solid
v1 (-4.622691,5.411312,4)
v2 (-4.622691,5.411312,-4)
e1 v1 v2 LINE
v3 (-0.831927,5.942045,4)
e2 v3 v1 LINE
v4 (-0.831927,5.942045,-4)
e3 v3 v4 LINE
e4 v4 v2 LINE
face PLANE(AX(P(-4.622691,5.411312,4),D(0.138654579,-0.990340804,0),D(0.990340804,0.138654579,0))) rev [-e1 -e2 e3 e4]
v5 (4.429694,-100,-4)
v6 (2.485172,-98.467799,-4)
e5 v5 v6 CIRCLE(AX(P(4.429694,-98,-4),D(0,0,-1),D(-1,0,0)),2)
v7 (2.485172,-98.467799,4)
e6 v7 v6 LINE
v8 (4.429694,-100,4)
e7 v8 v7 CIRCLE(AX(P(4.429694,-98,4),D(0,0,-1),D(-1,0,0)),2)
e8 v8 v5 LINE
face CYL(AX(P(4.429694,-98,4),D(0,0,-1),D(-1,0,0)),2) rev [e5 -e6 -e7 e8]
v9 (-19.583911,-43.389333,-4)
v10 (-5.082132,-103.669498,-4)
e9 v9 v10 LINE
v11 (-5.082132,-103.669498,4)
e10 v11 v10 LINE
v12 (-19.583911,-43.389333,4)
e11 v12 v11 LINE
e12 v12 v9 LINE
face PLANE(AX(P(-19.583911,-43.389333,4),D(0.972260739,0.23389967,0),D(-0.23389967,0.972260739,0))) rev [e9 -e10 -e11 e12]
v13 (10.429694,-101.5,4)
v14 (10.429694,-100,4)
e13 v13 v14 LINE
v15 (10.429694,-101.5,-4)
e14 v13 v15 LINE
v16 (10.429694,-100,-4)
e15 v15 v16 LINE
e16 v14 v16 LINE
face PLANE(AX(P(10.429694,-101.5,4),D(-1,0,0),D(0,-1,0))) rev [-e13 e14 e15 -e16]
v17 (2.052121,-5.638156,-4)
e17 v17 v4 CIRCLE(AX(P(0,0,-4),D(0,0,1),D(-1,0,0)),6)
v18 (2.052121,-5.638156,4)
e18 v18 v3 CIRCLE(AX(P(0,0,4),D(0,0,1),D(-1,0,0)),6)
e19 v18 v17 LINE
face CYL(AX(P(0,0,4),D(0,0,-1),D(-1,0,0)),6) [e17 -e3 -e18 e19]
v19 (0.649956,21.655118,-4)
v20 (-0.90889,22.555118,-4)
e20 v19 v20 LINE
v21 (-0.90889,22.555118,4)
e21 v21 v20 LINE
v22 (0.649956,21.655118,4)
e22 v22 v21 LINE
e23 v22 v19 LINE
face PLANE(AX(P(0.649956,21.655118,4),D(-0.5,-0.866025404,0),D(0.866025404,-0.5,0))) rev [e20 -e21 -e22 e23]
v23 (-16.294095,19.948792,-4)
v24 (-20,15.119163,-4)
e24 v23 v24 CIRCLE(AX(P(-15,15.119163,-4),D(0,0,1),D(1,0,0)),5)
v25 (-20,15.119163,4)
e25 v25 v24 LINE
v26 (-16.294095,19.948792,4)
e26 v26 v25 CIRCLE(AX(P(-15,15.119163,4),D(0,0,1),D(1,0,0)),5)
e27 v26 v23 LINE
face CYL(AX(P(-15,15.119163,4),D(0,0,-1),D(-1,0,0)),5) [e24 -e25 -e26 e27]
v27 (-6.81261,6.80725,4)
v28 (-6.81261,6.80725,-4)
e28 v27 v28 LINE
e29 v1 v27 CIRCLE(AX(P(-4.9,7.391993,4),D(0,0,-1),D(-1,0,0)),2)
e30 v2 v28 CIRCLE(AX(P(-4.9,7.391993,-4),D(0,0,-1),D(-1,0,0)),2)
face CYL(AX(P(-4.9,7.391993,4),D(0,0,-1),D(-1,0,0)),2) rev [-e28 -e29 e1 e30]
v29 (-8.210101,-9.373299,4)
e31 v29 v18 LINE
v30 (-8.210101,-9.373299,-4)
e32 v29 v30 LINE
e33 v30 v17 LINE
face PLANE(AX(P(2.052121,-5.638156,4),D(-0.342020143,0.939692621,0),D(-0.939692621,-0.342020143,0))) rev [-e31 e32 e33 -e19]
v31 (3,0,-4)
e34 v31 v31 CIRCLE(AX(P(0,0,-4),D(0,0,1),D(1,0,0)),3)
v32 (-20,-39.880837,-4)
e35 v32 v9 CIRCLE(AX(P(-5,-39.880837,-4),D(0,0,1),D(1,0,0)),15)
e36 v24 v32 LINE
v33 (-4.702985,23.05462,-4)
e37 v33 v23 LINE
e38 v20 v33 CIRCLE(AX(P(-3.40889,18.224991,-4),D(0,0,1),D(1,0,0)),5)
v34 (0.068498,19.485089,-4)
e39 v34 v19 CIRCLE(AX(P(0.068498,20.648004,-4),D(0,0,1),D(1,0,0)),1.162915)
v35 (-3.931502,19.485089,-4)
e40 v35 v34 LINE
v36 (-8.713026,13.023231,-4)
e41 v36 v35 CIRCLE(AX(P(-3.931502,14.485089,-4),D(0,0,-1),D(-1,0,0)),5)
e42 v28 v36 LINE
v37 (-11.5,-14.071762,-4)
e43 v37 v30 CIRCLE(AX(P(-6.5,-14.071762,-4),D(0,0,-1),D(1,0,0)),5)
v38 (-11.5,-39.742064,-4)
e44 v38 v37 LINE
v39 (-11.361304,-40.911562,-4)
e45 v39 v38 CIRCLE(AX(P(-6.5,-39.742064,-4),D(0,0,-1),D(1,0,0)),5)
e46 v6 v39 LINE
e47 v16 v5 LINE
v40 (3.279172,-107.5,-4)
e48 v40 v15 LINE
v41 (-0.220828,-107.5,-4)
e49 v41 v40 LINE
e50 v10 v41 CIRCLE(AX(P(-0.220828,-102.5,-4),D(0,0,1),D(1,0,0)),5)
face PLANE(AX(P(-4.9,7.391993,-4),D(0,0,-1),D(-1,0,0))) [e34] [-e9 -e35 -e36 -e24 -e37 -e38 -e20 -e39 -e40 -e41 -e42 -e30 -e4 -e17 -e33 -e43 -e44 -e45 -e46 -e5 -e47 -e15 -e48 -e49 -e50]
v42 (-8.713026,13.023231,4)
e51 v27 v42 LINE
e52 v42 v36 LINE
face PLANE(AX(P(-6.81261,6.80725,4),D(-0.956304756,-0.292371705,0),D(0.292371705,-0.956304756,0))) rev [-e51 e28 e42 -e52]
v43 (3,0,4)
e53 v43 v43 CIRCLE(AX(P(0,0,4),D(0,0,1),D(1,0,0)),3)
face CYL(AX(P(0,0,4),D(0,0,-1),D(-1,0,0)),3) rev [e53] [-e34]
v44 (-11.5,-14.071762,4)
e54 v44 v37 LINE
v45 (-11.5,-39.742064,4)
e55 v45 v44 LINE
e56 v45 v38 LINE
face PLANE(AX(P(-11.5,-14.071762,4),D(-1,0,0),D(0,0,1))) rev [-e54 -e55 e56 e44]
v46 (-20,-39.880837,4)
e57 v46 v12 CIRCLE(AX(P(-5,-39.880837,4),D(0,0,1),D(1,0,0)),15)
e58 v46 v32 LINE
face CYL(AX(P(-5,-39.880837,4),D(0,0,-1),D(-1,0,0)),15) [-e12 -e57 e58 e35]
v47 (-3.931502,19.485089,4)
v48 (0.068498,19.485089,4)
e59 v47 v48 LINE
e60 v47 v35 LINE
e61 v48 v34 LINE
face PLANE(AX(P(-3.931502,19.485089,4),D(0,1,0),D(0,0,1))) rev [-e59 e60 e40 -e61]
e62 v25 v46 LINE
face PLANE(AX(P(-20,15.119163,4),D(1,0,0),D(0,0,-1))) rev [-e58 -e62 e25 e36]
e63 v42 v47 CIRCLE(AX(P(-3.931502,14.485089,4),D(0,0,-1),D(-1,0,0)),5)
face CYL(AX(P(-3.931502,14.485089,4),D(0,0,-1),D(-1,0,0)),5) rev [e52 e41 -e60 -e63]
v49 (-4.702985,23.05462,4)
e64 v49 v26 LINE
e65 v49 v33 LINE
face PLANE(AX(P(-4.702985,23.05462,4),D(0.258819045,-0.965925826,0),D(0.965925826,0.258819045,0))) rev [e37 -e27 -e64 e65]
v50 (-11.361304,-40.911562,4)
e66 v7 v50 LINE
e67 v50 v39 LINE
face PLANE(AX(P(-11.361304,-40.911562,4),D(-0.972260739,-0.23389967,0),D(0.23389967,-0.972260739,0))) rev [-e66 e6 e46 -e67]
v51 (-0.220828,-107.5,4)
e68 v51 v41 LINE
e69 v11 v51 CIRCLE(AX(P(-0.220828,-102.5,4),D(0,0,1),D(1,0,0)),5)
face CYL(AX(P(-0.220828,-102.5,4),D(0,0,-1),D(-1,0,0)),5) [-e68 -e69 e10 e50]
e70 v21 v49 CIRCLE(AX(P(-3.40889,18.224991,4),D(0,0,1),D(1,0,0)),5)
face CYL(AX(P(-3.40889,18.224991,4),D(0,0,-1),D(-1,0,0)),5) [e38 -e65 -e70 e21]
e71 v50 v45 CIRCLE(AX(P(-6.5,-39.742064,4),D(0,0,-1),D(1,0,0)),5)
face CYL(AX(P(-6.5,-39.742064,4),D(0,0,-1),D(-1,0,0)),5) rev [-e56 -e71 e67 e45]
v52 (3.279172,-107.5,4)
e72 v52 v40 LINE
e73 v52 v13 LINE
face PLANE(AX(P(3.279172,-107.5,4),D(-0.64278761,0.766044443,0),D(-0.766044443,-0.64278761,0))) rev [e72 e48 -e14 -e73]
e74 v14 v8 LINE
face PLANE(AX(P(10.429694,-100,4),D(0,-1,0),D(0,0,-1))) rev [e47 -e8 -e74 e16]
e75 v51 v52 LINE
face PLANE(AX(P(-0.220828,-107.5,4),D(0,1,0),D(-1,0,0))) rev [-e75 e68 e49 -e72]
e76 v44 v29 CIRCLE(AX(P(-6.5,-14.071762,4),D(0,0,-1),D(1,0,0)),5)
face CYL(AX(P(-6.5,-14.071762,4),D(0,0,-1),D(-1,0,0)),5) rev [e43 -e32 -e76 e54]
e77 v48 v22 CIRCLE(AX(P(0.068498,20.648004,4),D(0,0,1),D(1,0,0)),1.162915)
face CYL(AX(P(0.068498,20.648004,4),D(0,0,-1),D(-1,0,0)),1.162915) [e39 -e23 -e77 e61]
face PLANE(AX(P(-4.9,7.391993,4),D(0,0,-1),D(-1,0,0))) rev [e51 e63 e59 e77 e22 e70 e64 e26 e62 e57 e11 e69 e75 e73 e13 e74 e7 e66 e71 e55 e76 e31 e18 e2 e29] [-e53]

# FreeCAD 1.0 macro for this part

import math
import FreeCAD as App
import Part
import Sketcher
Q = App.Units.Quantity

doc = App.newDocument("Part")
params = doc.addObject("Spreadsheet::Sheet", "Params")
for row, (alias, value) in enumerate([
    ("sketch1_diameter", "6 mm"),
    ("sketch1_radius", "2 mm"),
    ("sketch1_radius2", "5 mm"),
    ("sketch1_radius3", "15 mm"),
    ("sketch1_radius4", "6 mm"),
    ("pad1_length", "8 mm"),
], start=1):
    params.set(f"A{row}", alias)
    params.set(f"B{row}", "=" + value)
    params.setAlias(f"B{row}", alias)

body = doc.addObject("PartDesign::Body", "Body")

# Sketch on XY plane
sketch1 = body.newObject("Sketcher::SketchObject", "Sketch")
sketch1.AttachmentSupport = (doc.getObject("XY_Plane"), [""])
sketch1.MapMode = "FlatFace"
sketch1.addGeometry(Part.LineSegment(App.Vector(-0.8, 5.9, 0), App.Vector(-4.6, 5.4, 0)), False)
sketch1.addGeometry(Part.ArcOfCircle(Part.Circle(App.Vector(-4.9, 7.4, 0), App.Vector(0, 0, 1), 2), math.radians(-163), math.radians(-82)), False)
sketch1.addGeometry(Part.LineSegment(App.Vector(-6.8, 6.8, 0), App.Vector(-8.7, 13, 0)), False)
sketch1.addGeometry(Part.ArcOfCircle(Part.Circle(App.Vector(-3.9, 14.5, 0), App.Vector(0, 0, 1), 5), math.radians(90), math.radians(197)), False)
sketch1.addGeometry(Part.LineSegment(App.Vector(-3.9, 19.5, 0), App.Vector(0.1, 19.5, 0)), False)
sketch1.addGeometry(Part.ArcOfCircle(Part.Circle(App.Vector(0.1, 20.6, 0), App.Vector(0, 0, 1), 1.2), math.radians(-90), math.radians(60)), False)
sketch1.addGeometry(Part.LineSegment(App.Vector(0.6, 21.7, 0), App.Vector(-0.9, 22.6, 0)), False)
sketch1.addGeometry(Part.ArcOfCircle(Part.Circle(App.Vector(-3.4, 18.2, 0), App.Vector(0, 0, 1), 5), math.radians(60), math.radians(105)), False)
sketch1.addGeometry(Part.LineSegment(App.Vector(-4.7, 23.1, 0), App.Vector(-16.3, 19.9, 0)), False)
sketch1.addGeometry(Part.ArcOfCircle(Part.Circle(App.Vector(-15, 15.1, 0), App.Vector(0, 0, 1), 5), math.radians(105), math.radians(180)), False)
sketch1.addGeometry(Part.LineSegment(App.Vector(-20, 15.1, 0), App.Vector(-20, -39.9, 0)), False)
sketch1.addGeometry(Part.ArcOfCircle(Part.Circle(App.Vector(-5, -39.9, 0), App.Vector(0, 0, 1), 15), math.radians(180), math.radians(193.53)), False)
sketch1.addGeometry(Part.LineSegment(App.Vector(-19.6, -43.4, 0), App.Vector(-5.1, -103.7, 0)), False)
sketch1.addGeometry(Part.ArcOfCircle(Part.Circle(App.Vector(-0.2, -102.5, 0), App.Vector(0, 0, 1), 5), math.radians(-166), math.radians(-90)), False)
sketch1.addGeometry(Part.LineSegment(App.Vector(-0.2, -107.5, 0), App.Vector(3.3, -107.5, 0)), False)
sketch1.addGeometry(Part.LineSegment(App.Vector(3.3, -107.5, 0), App.Vector(10.4, -101.5, 0)), False)
sketch1.addGeometry(Part.LineSegment(App.Vector(10.4, -101.5, 0), App.Vector(10.4, -100, 0)), False)
sketch1.addGeometry(Part.LineSegment(App.Vector(10.4, -100, 0), App.Vector(4.4, -100, 0)), False)
sketch1.addGeometry(Part.ArcOfCircle(Part.Circle(App.Vector(4.4, -98, 0), App.Vector(0, 0, 1), 2), math.radians(-166), math.radians(-90)), False)
sketch1.addGeometry(Part.LineSegment(App.Vector(2.5, -98.5, 0), App.Vector(-11.4, -40.9, 0)), False)
sketch1.addGeometry(Part.ArcOfCircle(Part.Circle(App.Vector(-6.5, -39.7, 0), App.Vector(0, 0, 1), 5), math.radians(-180), math.radians(-166.47)), False)
sketch1.addGeometry(Part.LineSegment(App.Vector(-11.5, -39.7, 0), App.Vector(-11.5, -14.1, 0)), False)
sketch1.addGeometry(Part.ArcOfCircle(Part.Circle(App.Vector(-6.5, -14.1, 0), App.Vector(0, 0, 1), 5), math.radians(110), math.radians(180)), False)
sketch1.addGeometry(Part.LineSegment(App.Vector(-8.2, -9.4, 0), App.Vector(2.1, -5.6, 0)), False)
sketch1.addGeometry(Part.ArcOfCircle(Part.Circle(App.Vector(0, 0, 0), App.Vector(0, 0, 1), 6), math.radians(-70), math.radians(98)), False)
sketch1.addGeometry(Part.Circle(App.Vector(0, 0, 0), App.Vector(0, 0, 1), 3), False)
sketch1.addConstraint(Sketcher.Constraint("Tangent", 0, 2, 1, 2))
sketch1.addConstraint(Sketcher.Constraint("Tangent", 1, 1, 2, 1))
sketch1.addConstraint(Sketcher.Constraint("Tangent", 2, 2, 3, 2))
sketch1.addConstraint(Sketcher.Constraint("Tangent", 3, 1, 4, 1))
sketch1.addConstraint(Sketcher.Constraint("Tangent", 4, 2, 5, 1))
sketch1.addConstraint(Sketcher.Constraint("Tangent", 5, 2, 6, 1))
sketch1.addConstraint(Sketcher.Constraint("Tangent", 6, 2, 7, 1))
sketch1.addConstraint(Sketcher.Constraint("Tangent", 7, 2, 8, 1))
sketch1.addConstraint(Sketcher.Constraint("Tangent", 8, 2, 9, 1))
sketch1.addConstraint(Sketcher.Constraint("Tangent", 9, 2, 10, 1))
sketch1.addConstraint(Sketcher.Constraint("Tangent", 10, 2, 11, 1))
sketch1.addConstraint(Sketcher.Constraint("Tangent", 11, 2, 12, 1))
sketch1.addConstraint(Sketcher.Constraint("Tangent", 12, 2, 13, 1))
sketch1.addConstraint(Sketcher.Constraint("Tangent", 13, 2, 14, 1))
sketch1.addConstraint(Sketcher.Constraint("Coincident", 14, 2, 15, 1))
sketch1.addConstraint(Sketcher.Constraint("Coincident", 15, 2, 16, 1))
sketch1.addConstraint(Sketcher.Constraint("Coincident", 16, 2, 17, 1))
sketch1.addConstraint(Sketcher.Constraint("Tangent", 17, 2, 18, 2))
sketch1.addConstraint(Sketcher.Constraint("Tangent", 18, 1, 19, 1))
sketch1.addConstraint(Sketcher.Constraint("Tangent", 19, 2, 20, 2))
sketch1.addConstraint(Sketcher.Constraint("Tangent", 20, 1, 21, 1))
sketch1.addConstraint(Sketcher.Constraint("Tangent", 21, 2, 22, 2))
sketch1.addConstraint(Sketcher.Constraint("Tangent", 22, 1, 23, 1))
sketch1.addConstraint(Sketcher.Constraint("Tangent", 23, 2, 24, 1))
sketch1.addConstraint(Sketcher.Constraint("Tangent", 24, 2, 0, 1))
sketch1.addConstraint(Sketcher.Constraint("Horizontal", 4))
sketch1.addConstraint(Sketcher.Constraint("Vertical", 10))
sketch1.addConstraint(Sketcher.Constraint("Horizontal", 14))
sketch1.addConstraint(Sketcher.Constraint("Vertical", 16))
sketch1.addConstraint(Sketcher.Constraint("Horizontal", 17))
sketch1.addConstraint(Sketcher.Constraint("Vertical", 21))
sketch1.addConstraint(Sketcher.Constraint("Coincident", 24, 3, -1, 1))
sketch1.addConstraint(Sketcher.Constraint("Coincident", 25, 3, -1, 1))
sketch1.addConstraint(Sketcher.Constraint("Equal", 3, 7))
sketch1.addConstraint(Sketcher.Constraint("Equal", 7, 9))
sketch1.addConstraint(Sketcher.Constraint("Equal", 9, 13))
sketch1.addConstraint(Sketcher.Constraint("Equal", 1, 18))
sketch1.addConstraint(Sketcher.Constraint("Equal", 13, 20))
sketch1.addConstraint(Sketcher.Constraint("Equal", 20, 22))
sketch1.addConstraint(Sketcher.Constraint("Parallel", 12, 19))
sketch1.addConstraint(Sketcher.Constraint("Diameter", 25, 6.0))
sketch1.addConstraint(Sketcher.Constraint("Radius", 1, 2.0))
sketch1.addConstraint(Sketcher.Constraint("Radius", 3, 5.0))
sketch1.addConstraint(Sketcher.Constraint("Radius", 11, 15.0))
sketch1.addConstraint(Sketcher.Constraint("Radius", 24, 6.0))
sketch1.addConstraint(Sketcher.Constraint("DistanceX", 4, 1, 4, 2, 4.0))
sketch1.addConstraint(Sketcher.Constraint("DistanceX", 17, 2, 17, 1, 6.0))
sketch1.addConstraint(Sketcher.Constraint("DistanceY", 10, 2, 10, 1, 55.0))
sketch1.addConstraint(Sketcher.Constraint("Angle", 2, Q("107 deg")))
sketch1.addConstraint(Sketcher.Constraint("Angle", 6, Q("150 deg")))
sketch1.addConstraint(Sketcher.Constraint("Angle", 8, Q("-165 deg")))
sketch1.addConstraint(Sketcher.Constraint("Angle", 15, Q("40 deg")))
sketch1.addConstraint(Sketcher.Constraint("Angle", 23, Q("20 deg")))
sketch1.addConstraint(Sketcher.Constraint("Distance", 8, 12.0))
sketch1.addConstraint(Sketcher.Constraint("Distance", 12, 62.0))
sketch1.addConstraint(Sketcher.Constraint("DistanceX", 14, 1, 14, 2, 3.5))
sketch1.addConstraint(Sketcher.Constraint("DistanceY", 16, 1, 16, 2, 1.5))
sketch1.addConstraint(Sketcher.Constraint("DistanceX", 9, 3, -1, 1, 15.0))
sketch1.addConstraint(Sketcher.Constraint("DistanceY", 18, 3, -1, 1, 98.0))
sketch1.addConstraint(Sketcher.Constraint("DistanceY", 14, 2, 15, 2, 6.0))
sketch1.addConstraint(Sketcher.Constraint("Distance", 2, 6.5))
sketch1.addConstraint(Sketcher.Constraint("Distance", 6, 1.8))
sketch1.addConstraint(Sketcher.Constraint("DistanceX", 1, 3, -1, 1, 4.9))
sketch1.addConstraint(Sketcher.Constraint("DistanceX", 20, 3, -1, 1, 6.5))
sketch1.addConstraint(Sketcher.Constraint("Angle", 0, Q("-172.03 deg")))
sketch1.setExpression("Constraints[40]", "Params.sketch1_diameter")
sketch1.setExpression("Constraints[41]", "Params.sketch1_radius")
sketch1.setExpression("Constraints[42]", "Params.sketch1_radius2")
sketch1.setExpression("Constraints[43]", "Params.sketch1_radius3")
sketch1.setExpression("Constraints[44]", "Params.sketch1_radius4")
pad1 = body.newObject("PartDesign::Pad", "Pad")
pad1.Profile = sketch1
pad1.setExpression("Length", "Params.pad1_length")
pad1.Midplane = True

doc.recompute()
